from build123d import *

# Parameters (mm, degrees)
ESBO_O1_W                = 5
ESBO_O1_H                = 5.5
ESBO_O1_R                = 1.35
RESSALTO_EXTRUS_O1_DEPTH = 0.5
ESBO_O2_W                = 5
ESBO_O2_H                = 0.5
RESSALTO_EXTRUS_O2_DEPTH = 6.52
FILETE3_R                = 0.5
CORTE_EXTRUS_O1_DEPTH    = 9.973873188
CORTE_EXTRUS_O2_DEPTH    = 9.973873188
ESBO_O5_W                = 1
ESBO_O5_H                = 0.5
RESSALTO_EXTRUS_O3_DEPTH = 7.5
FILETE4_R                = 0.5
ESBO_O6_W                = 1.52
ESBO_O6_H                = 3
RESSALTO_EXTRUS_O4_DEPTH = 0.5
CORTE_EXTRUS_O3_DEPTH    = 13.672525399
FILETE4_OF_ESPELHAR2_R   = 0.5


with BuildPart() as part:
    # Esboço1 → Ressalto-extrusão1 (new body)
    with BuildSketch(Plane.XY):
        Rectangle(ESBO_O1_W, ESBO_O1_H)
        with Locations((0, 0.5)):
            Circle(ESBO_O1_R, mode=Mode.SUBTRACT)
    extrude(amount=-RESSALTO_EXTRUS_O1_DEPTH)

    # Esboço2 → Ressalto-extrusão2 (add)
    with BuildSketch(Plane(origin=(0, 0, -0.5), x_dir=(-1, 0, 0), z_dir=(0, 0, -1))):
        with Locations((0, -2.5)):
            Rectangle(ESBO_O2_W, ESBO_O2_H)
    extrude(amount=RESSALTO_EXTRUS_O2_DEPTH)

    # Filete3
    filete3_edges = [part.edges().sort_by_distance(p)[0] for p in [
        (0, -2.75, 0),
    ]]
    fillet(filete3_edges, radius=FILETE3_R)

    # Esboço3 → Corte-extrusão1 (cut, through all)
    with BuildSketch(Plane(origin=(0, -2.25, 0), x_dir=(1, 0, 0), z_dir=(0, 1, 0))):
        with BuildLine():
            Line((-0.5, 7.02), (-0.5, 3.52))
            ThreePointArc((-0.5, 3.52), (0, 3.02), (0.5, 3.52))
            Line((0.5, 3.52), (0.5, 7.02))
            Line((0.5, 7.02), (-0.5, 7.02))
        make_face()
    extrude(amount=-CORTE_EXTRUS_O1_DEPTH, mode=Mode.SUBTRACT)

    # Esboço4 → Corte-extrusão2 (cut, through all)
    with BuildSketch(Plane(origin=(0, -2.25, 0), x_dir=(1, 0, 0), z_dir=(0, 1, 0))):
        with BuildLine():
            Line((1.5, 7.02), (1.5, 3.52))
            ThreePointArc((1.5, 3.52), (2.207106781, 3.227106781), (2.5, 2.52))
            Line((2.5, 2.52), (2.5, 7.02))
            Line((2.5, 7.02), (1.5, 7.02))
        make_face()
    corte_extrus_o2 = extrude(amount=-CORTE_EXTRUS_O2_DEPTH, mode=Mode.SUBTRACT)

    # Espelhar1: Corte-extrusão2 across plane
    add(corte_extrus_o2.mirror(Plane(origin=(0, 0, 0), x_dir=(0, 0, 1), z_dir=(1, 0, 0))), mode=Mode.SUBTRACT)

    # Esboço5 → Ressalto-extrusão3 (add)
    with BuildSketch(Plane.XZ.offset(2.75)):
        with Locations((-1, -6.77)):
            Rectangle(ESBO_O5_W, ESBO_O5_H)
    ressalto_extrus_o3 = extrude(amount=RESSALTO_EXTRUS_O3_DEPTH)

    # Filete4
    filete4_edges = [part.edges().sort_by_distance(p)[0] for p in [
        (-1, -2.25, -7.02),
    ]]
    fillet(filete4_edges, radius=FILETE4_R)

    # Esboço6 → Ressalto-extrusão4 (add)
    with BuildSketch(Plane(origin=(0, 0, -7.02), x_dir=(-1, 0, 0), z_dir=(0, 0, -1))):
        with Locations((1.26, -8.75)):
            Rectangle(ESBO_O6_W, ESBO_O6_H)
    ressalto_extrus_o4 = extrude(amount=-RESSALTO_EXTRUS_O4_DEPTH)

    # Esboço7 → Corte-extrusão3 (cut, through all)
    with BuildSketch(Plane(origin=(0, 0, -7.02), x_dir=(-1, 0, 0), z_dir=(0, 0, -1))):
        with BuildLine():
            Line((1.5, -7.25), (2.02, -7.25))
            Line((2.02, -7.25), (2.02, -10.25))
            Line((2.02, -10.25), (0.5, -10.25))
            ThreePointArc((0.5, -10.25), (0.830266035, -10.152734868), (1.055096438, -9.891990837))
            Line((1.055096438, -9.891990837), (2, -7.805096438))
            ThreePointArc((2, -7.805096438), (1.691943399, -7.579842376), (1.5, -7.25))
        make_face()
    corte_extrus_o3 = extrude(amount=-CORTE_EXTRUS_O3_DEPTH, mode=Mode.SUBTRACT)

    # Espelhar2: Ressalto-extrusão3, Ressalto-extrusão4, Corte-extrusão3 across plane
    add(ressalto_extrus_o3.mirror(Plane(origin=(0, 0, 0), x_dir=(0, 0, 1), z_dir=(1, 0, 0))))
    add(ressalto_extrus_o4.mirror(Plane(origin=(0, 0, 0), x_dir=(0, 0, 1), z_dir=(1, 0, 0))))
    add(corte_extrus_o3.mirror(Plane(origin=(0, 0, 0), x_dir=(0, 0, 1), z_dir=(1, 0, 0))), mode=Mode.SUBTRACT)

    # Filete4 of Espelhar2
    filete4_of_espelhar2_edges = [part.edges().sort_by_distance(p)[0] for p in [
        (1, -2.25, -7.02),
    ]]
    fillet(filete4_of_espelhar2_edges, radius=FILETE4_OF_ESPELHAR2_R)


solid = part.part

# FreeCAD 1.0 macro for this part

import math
import FreeCAD as App
import Part
import Sketcher
from FreeCAD import Vector


def edges_at(feature, points):
    """Names of the edges that pass closest to the given points."""
    edges = feature.Shape.Edges
    near = lambda p: min(range(len(edges)), key=lambda i: edges[i].distToShape(Part.Vertex(*p))[0])
    return sorted({f"Edge{near(p) + 1}" for p in points})


def add_polygon(sketch, points):
    """Adds a closed chain of lines whose ends are joined by coincident constraints."""
    first, n = sketch.GeometryCount, len(points)
    for a, b in zip(points, points[1:] + points[:1]):
        sketch.addGeometry(Part.LineSegment(App.Vector(*a, 0), App.Vector(*b, 0)), False)
    for i in range(n):
        sketch.addConstraint(Sketcher.Constraint("Coincident", first + i, 2, first + (i + 1) % n, 1))

doc = App.newDocument("Part")
body = doc.addObject("PartDesign::Body", "Body")

# Sketch on XY plane
sketch1 = body.newObject("Sketcher::SketchObject", "Sketch")
sketch1.AttachmentSupport = (doc.getObject("XY_Plane"), [""])
sketch1.MapMode = "FlatFace"
add_polygon(sketch1, [(-2.5, 2.75), (-2.5, -2.75), (2.5, -2.75), (2.5, 2.75)])  # lines 0-3
sketch1.addGeometry(Part.Circle(Vector(0, 0.5, 0), Vector(0, 0, 1), 1.35), False)  # 4
sketch1.addConstraint(Sketcher.Constraint("Vertical", 0))
sketch1.addConstraint(Sketcher.Constraint("Horizontal", 1))
sketch1.addConstraint(Sketcher.Constraint("Vertical", 2))
sketch1.addConstraint(Sketcher.Constraint("Horizontal", 3))
sketch1.addConstraint(Sketcher.Constraint("Symmetric", 0, 2, 2, 2, -1, 1))
sketch1.addConstraint(Sketcher.Constraint("PointOnObject", 4, 3, -2))
sketch1.addConstraint(Sketcher.Constraint("Diameter", 4, 2.7))
sketch1.addConstraint(Sketcher.Constraint("DistanceX", 1, 1, 1, 2, 5.0))
sketch1.addConstraint(Sketcher.Constraint("DistanceY", 0, 2, 0, 1, 5.5))
sketch1.addConstraint(Sketcher.Constraint("DistanceY", -1, 1, 4, 3, 0.5))
pad1 = body.newObject("PartDesign::Pad", "Pad")
pad1.Profile = sketch1
pad1.Length = 0.5
pad1.Reversed = True

# Sketch on XY plane
sketch2 = body.newObject("Sketcher::SketchObject", "Sketch001")
sketch2.AttachmentSupport = (doc.getObject("XY_Plane"), [""])
sketch2.MapMode = "FlatFace"
sketch2.AttachmentOffset = App.Placement(Vector(0, 0, -0.5), App.Rotation())
add_polygon(sketch2, [(2.5, -2.25), (2.5, -2.75), (-2.5, -2.75), (-2.5, -2.25)])  # lines 0-3
sketch2.addConstraint(Sketcher.Constraint("Vertical", 0))
sketch2.addConstraint(Sketcher.Constraint("Horizontal", 1))
sketch2.addConstraint(Sketcher.Constraint("Vertical", 2))
sketch2.addConstraint(Sketcher.Constraint("Horizontal", 3))
sketch2.addConstraint(Sketcher.Constraint("DistanceX", 1, 2, 1, 1, 5.0))
sketch2.addConstraint(Sketcher.Constraint("DistanceY", 0, 2, 0, 1, 0.5))
sketch2.addConstraint(Sketcher.Constraint("DistanceX", -1, 1, 0, 2, 2.5))
sketch2.addConstraint(Sketcher.Constraint("DistanceY", 0, 2, -1, 1, 2.75))
pad2 = body.newObject("PartDesign::Pad", "Pad001")
pad2.Profile = sketch2
pad2.Length = 6.52
pad2.Reversed = True
doc.recompute()

fillet = body.newObject("PartDesign::Fillet", "Fillet")
fillet.Base = (pad2, edges_at(pad2, [(0, -2.75, 0)]))
fillet.Radius = 0.5

# Sketch on XZ plane
sketch3 = body.newObject("Sketcher::SketchObject", "Sketch002")
sketch3.AttachmentSupport = (doc.getObject("XZ_Plane"), [""])
sketch3.MapMode = "FlatFace"
sketch3.AttachmentOffset = App.Placement(Vector(0, 0, 2.25), App.Rotation())
sketch3.addGeometry(Part.LineSegment(Vector(-0.5, -7.02, 0), Vector(-0.5, -3.52, 0)), False)
sketch3.addGeometry(Part.ArcOfCircle(Part.Circle(Vector(0, -3.52, 0), Vector(0, 0, 1), 0.5), math.radians(0), math.radians(180)), False)
sketch3.addGeometry(Part.LineSegment(Vector(0.5, -3.52, 0), Vector(0.5, -7.02, 0)), False)
sketch3.addGeometry(Part.LineSegment(Vector(0.5, -7.02, 0), Vector(-0.5, -7.02, 0)), False)
sketch3.addConstraint(Sketcher.Constraint("Tangent", 0, 2, 1, 2))
sketch3.addConstraint(Sketcher.Constraint("Tangent", 1, 1, 2, 1))
sketch3.addConstraint(Sketcher.Constraint("Coincident", 2, 2, 3, 1))
sketch3.addConstraint(Sketcher.Constraint("Coincident", 3, 2, 0, 1))
sketch3.addConstraint(Sketcher.Constraint("Vertical", 0))
sketch3.addConstraint(Sketcher.Constraint("Vertical", 2))
sketch3.addConstraint(Sketcher.Constraint("Horizontal", 3))
sketch3.addConstraint(Sketcher.Constraint("PointOnObject", 1, 3, -2))
sketch3.addConstraint(Sketcher.Constraint("Radius", 1, 0.5))
sketch3.addConstraint(Sketcher.Constraint("DistanceY", 0, 1, 0, 2, 3.5))
sketch3.addConstraint(Sketcher.Constraint("DistanceY", 1, 3, -1, 1, 3.52))
pocket1 = body.newObject("PartDesign::Pocket", "Pocket")
pocket1.Profile = sketch3
pocket1.Type = "ThroughAll"
pocket1.Reversed = True

# Sketch on XZ plane
sketch4 = body.newObject("Sketcher::SketchObject", "Sketch003")
sketch4.AttachmentSupport = (doc.getObject("XZ_Plane"), [""])
sketch4.MapMode = "FlatFace"
sketch4.AttachmentOffset = App.Placement(Vector(0, 0, 2.25), App.Rotation())
sketch4.addGeometry(Part.LineSegment(Vector(1.5, -7.02, 0), Vector(1.5, -3.52, 0)), False)
sketch4.addGeometry(Part.ArcOfCircle(Part.Circle(Vector(1.5, -2.52, 0), Vector(0, 0, 1), 1), math.radians(-90), math.radians(0)), False)
sketch4.addGeometry(Part.LineSegment(Vector(2.5, -2.52, 0), Vector(2.5, -7.02, 0)), False)
sketch4.addGeometry(Part.LineSegment(Vector(2.5, -7.02, 0), Vector(1.5, -7.02, 0)), False)
sketch4.addConstraint(Sketcher.Constraint("Coincident", 0, 2, 1, 1))
sketch4.addConstraint(Sketcher.Constraint("Tangent", 1, 2, 2, 1))
sketch4.addConstraint(Sketcher.Constraint("Coincident", 2, 2, 3, 1))
sketch4.addConstraint(Sketcher.Constraint("Coincident", 3, 2, 0, 1))
sketch4.addConstraint(Sketcher.Constraint("Vertical", 0))
sketch4.addConstraint(Sketcher.Constraint("Vertical", 2))
sketch4.addConstraint(Sketcher.Constraint("Horizontal", 3))
sketch4.addConstraint(Sketcher.Constraint("Vertical", 1, 3, 0, 2))
sketch4.addConstraint(Sketcher.Constraint("Radius", 1, 1.0))
sketch4.addConstraint(Sketcher.Constraint("DistanceY", 0, 1, 0, 2, 3.5))
sketch4.addConstraint(Sketcher.Constraint("DistanceX", -1, 1, 1, 3, 1.5))
sketch4.addConstraint(Sketcher.Constraint("DistanceY", 1, 3, -1, 1, 2.52))
pocket2 = body.newObject("PartDesign::Pocket", "Pocket001")
pocket2.Profile = sketch4
pocket2.Type = "ThroughAll"
pocket2.Reversed = True
doc.recompute()

mirrored = body.newObject("PartDesign::Mirrored", "Mirrored")
mirrored.Originals = [pocket2]
mirrored.MirrorPlane = (doc.getObject("YZ_Plane"), [""])
body.Tip = mirrored

# Sketch on XZ plane
sketch5 = body.newObject("Sketcher::SketchObject", "Sketch004")
sketch5.AttachmentSupport = (doc.getObject("XZ_Plane"), [""])
sketch5.MapMode = "FlatFace"
sketch5.AttachmentOffset = App.Placement(Vector(0, 0, 2.75), App.Rotation())
add_polygon(sketch5, [(-1.5, -6.52), (-1.5, -7.02), (-0.5, -7.02), (-0.5, -6.52)])  # lines 0-3
sketch5.addConstraint(Sketcher.Constraint("Vertical", 0))
sketch5.addConstraint(Sketcher.Constraint("Horizontal", 1))
sketch5.addConstraint(Sketcher.Constraint("Vertical", 2))
sketch5.addConstraint(Sketcher.Constraint("Horizontal", 3))
sketch5.addConstraint(Sketcher.Constraint("DistanceX", 1, 1, 1, 2, 1.0))
sketch5.addConstraint(Sketcher.Constraint("DistanceY", 0, 2, 0, 1, 0.5))
sketch5.addConstraint(Sketcher.Constraint("DistanceX", 0, 2, -1, 1, 1.5))
sketch5.addConstraint(Sketcher.Constraint("DistanceY", 0, 2, -1, 1, 7.02))
pad3 = body.newObject("PartDesign::Pad", "Pad002")
pad3.Profile = sketch5
pad3.Length = 7.5
doc.recompute()

fillet2 = body.newObject("PartDesign::Fillet", "Fillet001")
fillet2.Base = (pad3, edges_at(pad3, [(-1, -2.25, -7.02)]))
fillet2.Radius = 0.5

# Sketch on XY plane
sketch6 = body.newObject("Sketcher::SketchObject", "Sketch005")
sketch6.AttachmentSupport = (doc.getObject("XY_Plane"), [""])
sketch6.MapMode = "FlatFace"
sketch6.AttachmentOffset = App.Placement(Vector(0, 0, -7.02), App.Rotation())
add_polygon(sketch6, [(-0.5, -7.25), (-0.5, -10.25), (-2.02, -10.25), (-2.02, -7.25)])  # lines 0-3
sketch6.addConstraint(Sketcher.Constraint("Vertical", 0))
sketch6.addConstraint(Sketcher.Constraint("Horizontal", 1))
sketch6.addConstraint(Sketcher.Constraint("Vertical", 2))
sketch6.addConstraint(Sketcher.Constraint("Horizontal", 3))
sketch6.addConstraint(Sketcher.Constraint("DistanceY", 0, 2, 0, 1, 3.0))
sketch6.addConstraint(Sketcher.Constraint("DistanceX", 1, 2, 1, 1, 1.52))
sketch6.addConstraint(Sketcher.Constraint("DistanceX", 0, 2, -1, 1, 0.5))
sketch6.addConstraint(Sketcher.Constraint("DistanceY", 0, 2, -1, 1, 10.25))
pad4 = body.newObject("PartDesign::Pad", "Pad003")
pad4.Profile = sketch6
pad4.Length = 0.5

# Sketch on XY plane
sketch7 = body.newObject("Sketcher::SketchObject", "Sketch006")
sketch7.AttachmentSupport = (doc.getObject("XY_Plane"), [""])
sketch7.MapMode = "FlatFace"
sketch7.AttachmentOffset = App.Placement(Vector(0, 0, -7.02), App.Rotation())
sketch7.addGeometry(Part.LineSegment(Vector(-2.02, -7.25, 0), Vector(-1.5, -7.25, 0)), False)
sketch7.addGeometry(Part.ArcOfCircle(Part.Circle(Vector(-2.384402, -6.956114, 0), Vector(0, 0, 1), 0.931953), math.radians(-65.639944), math.radians(-18.38159)), False)
sketch7.addGeometry(Part.LineSegment(Vector(-2, -7.805096, 0), Vector(-1.055096, -9.891991, 0)), False)
sketch7.addGeometry(Part.ArcOfCircle(Part.Circle(Vector(-0.5, -9.640654, 0), Vector(0, 0, 1), 0.609346), math.radians(-155.639944), math.radians(-90)), False)
sketch7.addGeometry(Part.LineSegment(Vector(-0.5, -10.25, 0), Vector(-2.02, -10.25, 0)), False)
sketch7.addGeometry(Part.LineSegment(Vector(-2.02, -10.25, 0), Vector(-2.02, -7.25, 0)), False)
sketch7.addConstraint(Sketcher.Constraint("Coincident", 0, 2, 1, 2))
sketch7.addConstraint(Sketcher.Constraint("Coincident", 1, 1, 2, 1))
sketch7.addConstraint(Sketcher.Constraint("Tangent", 2, 2, 3, 1))
sketch7.addConstraint(Sketcher.Constraint("Tangent", 3, 2, 4, 1))
sketch7.addConstraint(Sketcher.Constraint("Coincident", 4, 2, 5, 1))
sketch7.addConstraint(Sketcher.Constraint("Coincident", 5, 2, 0, 1))
sketch7.addConstraint(Sketcher.Constraint("Horizontal", 0))
sketch7.addConstraint(Sketcher.Constraint("Horizontal", 4))
sketch7.addConstraint(Sketcher.Constraint("Vertical", 5))
sketch7.addConstraint(Sketcher.Constraint("DistanceY", 5, 1, 5, 2, 3.0))
sketch7.addConstraint(Sketcher.Constraint("DistanceX", 1, 1, -1, 1, 2.0))
sketch7.addConstraint(Sketcher.Constraint("DistanceX", 0, 2, 3, 3, 1.0))
sketch7.addConstraint(Sketcher.Constraint("DistanceX", 0, 1, 0, 2, 0.52))
sketch7.addConstraint(Sketcher.Constraint("DistanceX", 3, 3, -1, 1, 0.5))
sketch7.addConstraint(Sketcher.Constraint("DistanceY", 0, 2, -1, 1, 7.25))
sketch7.addConstraint(Sketcher.Constraint("Radius", 1, 0.931953))
sketch7.addConstraint(Sketcher.Constraint("Radius", 3, 0.609346))
sketch7.addConstraint(Sketcher.Constraint("DistanceX", 1, 3, -1, 1, 2.384402))
pocket3 = body.newObject("PartDesign::Pocket", "Pocket002")
pocket3.Profile = sketch7
pocket3.Type = "ThroughAll"
pocket3.Reversed = True
doc.recompute()

mirrored2 = body.newObject("PartDesign::Mirrored", "Mirrored001")
mirrored2.Originals = [pad3, pad4, pocket3]
mirrored2.MirrorPlane = (doc.getObject("YZ_Plane"), [""])
body.Tip = mirrored2
doc.recompute()

fillet3 = body.newObject("PartDesign::Fillet", "Fillet002")
fillet3.Base = (mirrored2, edges_at(mirrored2, [(1, -2.25, -7.02)]))
fillet3.Radius = 0.5

doc.recompute()
